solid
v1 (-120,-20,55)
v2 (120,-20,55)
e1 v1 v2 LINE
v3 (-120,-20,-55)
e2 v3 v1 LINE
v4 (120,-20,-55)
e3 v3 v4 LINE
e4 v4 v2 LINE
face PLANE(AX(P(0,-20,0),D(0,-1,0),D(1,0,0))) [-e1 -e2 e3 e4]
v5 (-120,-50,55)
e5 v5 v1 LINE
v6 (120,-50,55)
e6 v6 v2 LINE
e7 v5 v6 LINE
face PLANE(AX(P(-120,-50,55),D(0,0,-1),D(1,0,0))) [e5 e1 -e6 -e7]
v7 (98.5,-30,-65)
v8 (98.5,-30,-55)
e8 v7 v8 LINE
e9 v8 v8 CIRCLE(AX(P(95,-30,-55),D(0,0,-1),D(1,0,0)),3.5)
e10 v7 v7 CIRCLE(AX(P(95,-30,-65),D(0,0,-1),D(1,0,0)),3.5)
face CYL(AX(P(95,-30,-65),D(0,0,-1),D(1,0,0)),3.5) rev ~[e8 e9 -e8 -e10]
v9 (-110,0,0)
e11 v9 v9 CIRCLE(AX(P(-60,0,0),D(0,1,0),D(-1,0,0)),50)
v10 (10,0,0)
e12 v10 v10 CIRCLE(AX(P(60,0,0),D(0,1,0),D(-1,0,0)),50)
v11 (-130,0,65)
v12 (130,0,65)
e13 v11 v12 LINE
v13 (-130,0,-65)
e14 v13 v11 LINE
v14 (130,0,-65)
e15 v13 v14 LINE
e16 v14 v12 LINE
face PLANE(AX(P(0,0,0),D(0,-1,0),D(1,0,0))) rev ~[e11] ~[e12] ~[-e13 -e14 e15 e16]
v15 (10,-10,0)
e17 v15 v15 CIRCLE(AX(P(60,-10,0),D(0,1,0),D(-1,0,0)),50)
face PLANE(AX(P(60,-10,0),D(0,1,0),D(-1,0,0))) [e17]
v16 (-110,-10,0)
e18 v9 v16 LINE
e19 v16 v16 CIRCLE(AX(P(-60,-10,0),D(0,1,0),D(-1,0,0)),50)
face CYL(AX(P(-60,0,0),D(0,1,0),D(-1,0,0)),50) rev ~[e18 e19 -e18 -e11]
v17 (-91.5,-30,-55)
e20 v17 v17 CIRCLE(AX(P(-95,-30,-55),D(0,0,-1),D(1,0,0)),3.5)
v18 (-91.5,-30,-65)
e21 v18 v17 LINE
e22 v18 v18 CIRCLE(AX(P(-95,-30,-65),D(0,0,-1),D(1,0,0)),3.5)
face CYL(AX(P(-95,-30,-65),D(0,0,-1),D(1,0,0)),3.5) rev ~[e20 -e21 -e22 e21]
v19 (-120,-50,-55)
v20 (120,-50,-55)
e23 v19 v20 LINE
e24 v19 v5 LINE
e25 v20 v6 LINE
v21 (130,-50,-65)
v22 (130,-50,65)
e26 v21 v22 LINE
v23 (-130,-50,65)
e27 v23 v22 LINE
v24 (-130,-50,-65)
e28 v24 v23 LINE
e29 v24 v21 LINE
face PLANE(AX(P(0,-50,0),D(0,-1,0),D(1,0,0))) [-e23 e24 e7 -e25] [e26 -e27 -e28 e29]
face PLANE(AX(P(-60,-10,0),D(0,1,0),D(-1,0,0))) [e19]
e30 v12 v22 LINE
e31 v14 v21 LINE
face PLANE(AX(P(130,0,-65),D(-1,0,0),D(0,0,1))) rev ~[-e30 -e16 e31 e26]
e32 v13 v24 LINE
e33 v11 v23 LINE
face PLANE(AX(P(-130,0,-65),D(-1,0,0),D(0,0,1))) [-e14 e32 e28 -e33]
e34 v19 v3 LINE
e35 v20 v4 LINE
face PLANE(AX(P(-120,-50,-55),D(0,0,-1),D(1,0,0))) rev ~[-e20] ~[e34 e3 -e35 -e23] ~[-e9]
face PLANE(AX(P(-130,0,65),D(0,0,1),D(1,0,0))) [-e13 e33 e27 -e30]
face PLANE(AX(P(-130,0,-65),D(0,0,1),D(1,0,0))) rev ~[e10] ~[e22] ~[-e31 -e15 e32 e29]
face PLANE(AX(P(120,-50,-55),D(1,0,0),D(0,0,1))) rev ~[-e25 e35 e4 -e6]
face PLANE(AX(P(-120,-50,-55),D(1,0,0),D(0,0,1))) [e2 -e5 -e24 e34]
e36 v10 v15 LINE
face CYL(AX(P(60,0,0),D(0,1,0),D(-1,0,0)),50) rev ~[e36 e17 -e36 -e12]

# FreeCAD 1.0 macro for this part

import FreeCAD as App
import Part
import Sketcher
from FreeCAD import Vector
Q = App.Units.Quantity


def add_polygon(sketch, points):
    """Adds a closed chain of lines whose ends are joined by coincident constraints."""
    first, n = sketch.GeometryCount, len(points)
    for a, b in zip(points, points[1:] + points[:1]):
        sketch.addGeometry(Part.LineSegment(App.Vector(*a, 0), App.Vector(*b, 0)), False)
    for i in range(n):
        sketch.addConstraint(Sketcher.Constraint("Coincident", first + i, 2, first + (i + 1) % n, 1))

doc = App.newDocument("Part")
params = doc.addObject("Spreadsheet::Sheet", "Params")
for row, (alias, value) in enumerate([
    ("sketch1_width", "260 mm"),
    ("sketch1_height", "130 mm"),
    ("pad1_length", "50 mm"),
    ("sketch2_diameter", "100 mm"),
    ("pocket1_length", "10 mm"),
    ("sketch3_width", "240 mm"),
    ("sketch3_height", "110 mm"),
    ("pocket2_length", "30 mm"),
    ("sketch4_diameter", "7 mm"),
    ("pocket3_length", "50 mm"),
], start=1):
    params.set(f"A{row}", alias)
    params.set(f"B{row}", "=" + value)
    params.setAlias(f"B{row}", alias)

body = doc.addObject("PartDesign::Body", "Body")

# Sketch on XZ plane
sketch1 = doc.addObject("Sketcher::SketchObject", "Sketch")
body.addObject(sketch1)
sketch1.AttachmentSupport = (doc.XZ_Plane, [""])
sketch1.MapMode = "FlatFace"
add_polygon(sketch1, [(-130, 65), (-130, -65), (130, -65), (130, 65)])  # lines 0-3
sketch1.addConstraint(Sketcher.Constraint("Vertical", 0))
sketch1.addConstraint(Sketcher.Constraint("Horizontal", 1))
sketch1.addConstraint(Sketcher.Constraint("Vertical", 2))
sketch1.addConstraint(Sketcher.Constraint("Horizontal", 3))
sketch1.addConstraint(Sketcher.Constraint("Symmetric", 0, 2, 2, 2, -1, 1))
sketch1.addConstraint(Sketcher.Constraint("DistanceX", 1, 1, 1, 2, Q("260 mm")))
sketch1.addConstraint(Sketcher.Constraint("DistanceY", 0, 2, 0, 1, Q("130 mm")))
sketch1.setExpression("Constraints[9]", "Params.sketch1_width")
sketch1.setExpression("Constraints[10]", "Params.sketch1_height")
pad1 = doc.addObject("PartDesign::Pad", "Pad")
body.addObject(pad1)
pad1.Profile = sketch1
pad1.setExpression("Length", "Params.pad1_length")

# Sketch on XZ plane
sketch2 = doc.addObject("Sketcher::SketchObject", "Sketch001")
body.addObject(sketch2)
sketch2.AttachmentSupport = (doc.XZ_Plane, [""])
sketch2.MapMode = "FlatFace"
sketch2.addGeometry(Part.Circle(Vector(-60, 0, 0), Vector(0, 0, 1), 50), False)
sketch2.addGeometry(Part.Circle(Vector(60, 0, 0), Vector(0, 0, 1), 50), False)
sketch2.addConstraint(Sketcher.Constraint("Equal", 0, 1))
sketch2.addConstraint(Sketcher.Constraint("Symmetric", 0, 3, 1, 3, -1, 1))
sketch2.addConstraint(Sketcher.Constraint("PointOnObject", 0, 3, -1))
sketch2.addConstraint(Sketcher.Constraint("Diameter", 0, Q("100 mm")))
sketch2.addConstraint(Sketcher.Constraint("DistanceX", 0, 3, -1, 1, Q("60 mm")))
sketch2.setExpression("Constraints[3]", "Params.sketch2_diameter")
pocket1 = doc.addObject("PartDesign::Pocket", "Pocket")
body.addObject(pocket1)
pocket1.Profile = sketch2
pocket1.setExpression("Length", "Params.pocket1_length")
pocket1.Reversed = True

# Sketch on XZ plane
sketch3 = doc.addObject("Sketcher::SketchObject", "Sketch002")
body.addObject(sketch3)
sketch3.AttachmentSupport = (doc.XZ_Plane, [""])
sketch3.MapMode = "FlatFace"
sketch3.AttachmentOffset = App.Placement(Vector(0, 0, 50), App.Rotation())
add_polygon(sketch3, [(-120, 55), (-120, -55), (120, -55), (120, 55)])  # lines 0-3
sketch3.addConstraint(Sketcher.Constraint("Vertical", 0))
sketch3.addConstraint(Sketcher.Constraint("Horizontal", 1))
sketch3.addConstraint(Sketcher.Constraint("Vertical", 2))
sketch3.addConstraint(Sketcher.Constraint("Horizontal", 3))
sketch3.addConstraint(Sketcher.Constraint("Symmetric", 0, 2, 2, 2, -1, 1))
sketch3.addConstraint(Sketcher.Constraint("DistanceX", 1, 1, 1, 2, Q("240 mm")))
sketch3.addConstraint(Sketcher.Constraint("DistanceY", 0, 2, 0, 1, Q("110 mm")))
sketch3.setExpression("Constraints[9]", "Params.sketch3_width")
sketch3.setExpression("Constraints[10]", "Params.sketch3_height")
pocket2 = doc.addObject("PartDesign::Pocket", "Pocket001")
body.addObject(pocket2)
pocket2.Profile = sketch3
pocket2.setExpression("Length", "Params.pocket2_length")

# Sketch on XY plane
sketch4 = doc.addObject("Sketcher::SketchObject", "Sketch003")
body.addObject(sketch4)
sketch4.AttachmentSupport = (doc.XY_Plane, [""])
sketch4.MapMode = "FlatFace"
sketch4.AttachmentOffset = App.Placement(Vector(0, 0, -65), App.Rotation())
sketch4.addGeometry(Part.Circle(Vector(95, -30, 0), Vector(0, 0, 1), 3.5), False)
sketch4.addGeometry(Part.Circle(Vector(-95, -30, 0), Vector(0, 0, 1), 3.5), False)
sketch4.addConstraint(Sketcher.Constraint("Equal", 0, 1))
sketch4.addConstraint(Sketcher.Constraint("Symmetric", 0, 3, 1, 3, -2))
sketch4.addConstraint(Sketcher.Constraint("Diameter", 0, Q("7 mm")))
sketch4.addConstraint(Sketcher.Constraint("DistanceX", -1, 1, 0, 3, Q("95 mm")))
sketch4.addConstraint(Sketcher.Constraint("DistanceY", 0, 3, -1, 1, Q("30 mm")))
sketch4.setExpression("Constraints[2]", "Params.sketch4_diameter")
pocket3 = doc.addObject("PartDesign::Pocket", "Pocket002")
body.addObject(pocket3)
pocket3.Profile = sketch4
pocket3.setExpression("Length", "Params.pocket3_length")
pocket3.Reversed = True

doc.recompute()
